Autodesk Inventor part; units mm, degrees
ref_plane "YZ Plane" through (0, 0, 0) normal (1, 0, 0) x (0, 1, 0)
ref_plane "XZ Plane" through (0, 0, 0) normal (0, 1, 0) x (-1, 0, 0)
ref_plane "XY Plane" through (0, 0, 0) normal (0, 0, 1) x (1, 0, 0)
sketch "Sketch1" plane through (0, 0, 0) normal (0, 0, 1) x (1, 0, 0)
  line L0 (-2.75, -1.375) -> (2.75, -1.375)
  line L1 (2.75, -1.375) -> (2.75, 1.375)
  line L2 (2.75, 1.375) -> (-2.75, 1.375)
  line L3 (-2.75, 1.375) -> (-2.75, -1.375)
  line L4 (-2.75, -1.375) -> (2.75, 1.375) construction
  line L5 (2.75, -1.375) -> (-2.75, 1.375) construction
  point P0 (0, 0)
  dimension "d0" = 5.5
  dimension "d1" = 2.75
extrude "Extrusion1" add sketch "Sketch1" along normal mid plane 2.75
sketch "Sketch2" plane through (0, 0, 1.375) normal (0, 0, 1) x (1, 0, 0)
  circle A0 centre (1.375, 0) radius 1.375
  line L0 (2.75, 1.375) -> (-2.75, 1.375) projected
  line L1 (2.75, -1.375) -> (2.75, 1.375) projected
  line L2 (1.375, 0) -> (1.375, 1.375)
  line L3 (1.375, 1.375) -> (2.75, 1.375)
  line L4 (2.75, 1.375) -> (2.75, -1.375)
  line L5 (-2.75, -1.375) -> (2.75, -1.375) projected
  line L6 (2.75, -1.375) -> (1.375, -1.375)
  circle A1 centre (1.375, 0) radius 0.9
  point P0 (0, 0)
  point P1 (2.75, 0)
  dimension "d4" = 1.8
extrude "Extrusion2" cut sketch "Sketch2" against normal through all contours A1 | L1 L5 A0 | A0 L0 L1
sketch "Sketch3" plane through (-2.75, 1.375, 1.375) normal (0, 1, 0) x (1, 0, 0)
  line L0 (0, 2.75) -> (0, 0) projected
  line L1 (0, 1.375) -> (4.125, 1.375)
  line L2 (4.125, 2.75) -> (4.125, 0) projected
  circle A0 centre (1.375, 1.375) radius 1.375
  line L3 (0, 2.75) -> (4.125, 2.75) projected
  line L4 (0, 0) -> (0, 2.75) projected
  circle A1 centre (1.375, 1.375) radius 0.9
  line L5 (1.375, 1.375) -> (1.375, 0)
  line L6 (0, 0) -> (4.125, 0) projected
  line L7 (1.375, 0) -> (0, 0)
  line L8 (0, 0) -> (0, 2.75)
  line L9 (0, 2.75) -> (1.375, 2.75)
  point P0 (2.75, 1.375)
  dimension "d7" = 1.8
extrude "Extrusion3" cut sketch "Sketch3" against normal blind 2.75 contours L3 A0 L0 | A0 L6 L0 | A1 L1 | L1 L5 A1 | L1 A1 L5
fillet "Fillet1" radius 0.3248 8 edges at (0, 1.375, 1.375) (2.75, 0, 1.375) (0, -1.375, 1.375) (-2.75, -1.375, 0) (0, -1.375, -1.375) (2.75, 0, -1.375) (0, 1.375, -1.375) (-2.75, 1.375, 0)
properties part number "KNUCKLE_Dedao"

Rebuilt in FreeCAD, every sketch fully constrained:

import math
import FreeCAD as App
import Part
import Sketcher

V = App.Vector


def edges_at(feature, points):
    """Names of the edges that pass closest to the given points."""
    edges = feature.Shape.Edges
    near = lambda p: min(range(len(edges)), key=lambda i: edges[i].distToShape(Part.Vertex(*p))[0])
    return sorted({f"Edge{near(p) + 1}" for p in points})


def add_polygon(sketch, points):
    """Adds a closed chain of lines whose ends are joined by coincident constraints."""
    first, n = sketch.GeometryCount, len(points)
    for a, b in zip(points, points[1:] + points[:1]):
        sketch.addGeometry(Part.LineSegment(App.Vector(*a, 0), App.Vector(*b, 0)), False)
    for i in range(n):
        sketch.addConstraint(Sketcher.Constraint("Coincident", first + i, 2, first + (i + 1) % n, 1))

doc = App.newDocument("Part")
body = doc.addObject("PartDesign::Body", "Body")

# Sketch on XY plane
sketch1 = body.newObject("Sketcher::SketchObject", "Sketch")
sketch1.AttachmentSupport = (doc.getObject("XY_Plane"), [""])
sketch1.MapMode = "FlatFace"
add_polygon(sketch1, [(-2.75, 1.375), (-2.75, -1.375), (2.75, -1.375), (2.75, 1.375)])  # lines 0-3
sketch1.addConstraint(Sketcher.Constraint("Vertical", 0))
sketch1.addConstraint(Sketcher.Constraint("Horizontal", 1))
sketch1.addConstraint(Sketcher.Constraint("Vertical", 2))
sketch1.addConstraint(Sketcher.Constraint("Horizontal", 3))
sketch1.addConstraint(Sketcher.Constraint("Symmetric", 0, 2, 2, 2, -1, 1))
sketch1.addConstraint(Sketcher.Constraint("DistanceX", 1, 1, 1, 2, 5.5))
sketch1.addConstraint(Sketcher.Constraint("DistanceY", 0, 2, 0, 1, 2.75))
pad1 = body.newObject("PartDesign::Pad", "Pad")
pad1.Profile = sketch1
pad1.Length = 2.75
pad1.Midplane = True

# Sketch on XY plane
sketch2 = body.newObject("Sketcher::SketchObject", "Sketch001")
sketch2.AttachmentSupport = (doc.getObject("XY_Plane"), [""])
sketch2.MapMode = "FlatFace"
sketch2.AttachmentOffset = App.Placement(V(0, 0, 1.375), App.Rotation())
sketch2.addGeometry(Part.Circle(V(1.375, 0, 0), V(0, 0, 1), 0.9), False)
sketch2.addGeometry(Part.LineSegment(V(2.75, -1.375, 0), V(2.75, 0, 0)), False)
sketch2.addGeometry(Part.ArcOfCircle(Part.Circle(V(1.375, 0, 0), V(0, 0, 1), 1.375), math.radians(-90), math.radians(0)), False)
sketch2.addGeometry(Part.LineSegment(V(1.375, -1.375, 0), V(2.75, -1.375, 0)), False)
sketch2.addGeometry(Part.ArcOfCircle(Part.Circle(V(1.375, 0, 0), V(0, 0, 1), 1.375), math.radians(0), math.radians(90)), False)
sketch2.addGeometry(Part.LineSegment(V(2.75, 0, 0), V(2.75, 1.375, 0)), False)
sketch2.addGeometry(Part.LineSegment(V(2.75, 1.375, 0), V(1.375, 1.375, 0)), False)
sketch2.addConstraint(Sketcher.Constraint("Tangent", 1, 2, 2, 2))
sketch2.addConstraint(Sketcher.Constraint("Tangent", 2, 1, 3, 1))
sketch2.addConstraint(Sketcher.Constraint("Coincident", 3, 2, 1, 1))
sketch2.addConstraint(Sketcher.Constraint("Tangent", 4, 1, 5, 1))
sketch2.addConstraint(Sketcher.Constraint("Coincident", 5, 2, 6, 1))
sketch2.addConstraint(Sketcher.Constraint("Tangent", 6, 2, 4, 2))
sketch2.addConstraint(Sketcher.Constraint("Vertical", 1))
sketch2.addConstraint(Sketcher.Constraint("Horizontal", 3))
sketch2.addConstraint(Sketcher.Constraint("Vertical", 5))
sketch2.addConstraint(Sketcher.Constraint("Horizontal", 6))
sketch2.addConstraint(Sketcher.Constraint("Coincident", 2, 3, 0, 3))
sketch2.addConstraint(Sketcher.Constraint("Coincident", 4, 3, 0, 3))
sketch2.addConstraint(Sketcher.Constraint("Equal", 2, 4))
sketch2.addConstraint(Sketcher.Constraint("PointOnObject", 0, 3, -1))
sketch2.addConstraint(Sketcher.Constraint("Diameter", 0, 1.8))
sketch2.addConstraint(Sketcher.Constraint("Radius", 2, 1.375))
sketch2.addConstraint(Sketcher.Constraint("DistanceX", -1, 1, 1, 2, 2.75))
pocket1 = body.newObject("PartDesign::Pocket", "Pocket")
pocket1.Profile = sketch2
pocket1.Type = "ThroughAll"

# Sketch on XZ plane
sketch3 = body.newObject("Sketcher::SketchObject", "Sketch002")
sketch3.AttachmentSupport = (doc.getObject("XZ_Plane"), [""])
sketch3.MapMode = "FlatFace"
sketch3.AttachmentOffset = App.Placement(V(0, 0, -1.375), App.Rotation())
sketch3.addGeometry(Part.LineSegment(V(-1.375, -1.375, 0), V(-2.75, -1.375, 0)), False)
sketch3.addGeometry(Part.LineSegment(V(-2.75, -1.375, 0), V(-2.75, 0, 0)), False)
sketch3.addGeometry(Part.ArcOfCircle(Part.Circle(V(-1.375, 0, 0), V(0, 0, 1), 1.375), math.radians(180), math.radians(270)), False)
sketch3.addGeometry(Part.ArcOfCircle(Part.Circle(V(-1.375, 0, 0), V(0, 0, 1), 1.375), math.radians(90), math.radians(180)), False)
sketch3.addGeometry(Part.LineSegment(V(-2.75, 0, 0), V(-2.75, 1.375, 0)), False)
sketch3.addGeometry(Part.LineSegment(V(-2.75, 1.375, 0), V(-1.375, 1.375, 0)), False)
sketch3.addGeometry(Part.Circle(V(-1.375, 0, 0), V(0, 0, 1), 0.9), False)
sketch3.addConstraint(Sketcher.Constraint("Coincident", 0, 2, 1, 1))
sketch3.addConstraint(Sketcher.Constraint("Tangent", 1, 2, 2, 1))
sketch3.addConstraint(Sketcher.Constraint("Tangent", 2, 2, 0, 1))
sketch3.addConstraint(Sketcher.Constraint("Tangent", 3, 2, 4, 1))
sketch3.addConstraint(Sketcher.Constraint("Coincident", 4, 2, 5, 1))
sketch3.addConstraint(Sketcher.Constraint("Tangent", 5, 2, 3, 1))
sketch3.addConstraint(Sketcher.Constraint("Horizontal", 0))
sketch3.addConstraint(Sketcher.Constraint("Vertical", 1))
sketch3.addConstraint(Sketcher.Constraint("Vertical", 4))
sketch3.addConstraint(Sketcher.Constraint("Horizontal", 5))
sketch3.addConstraint(Sketcher.Constraint("Coincident", 3, 3, 2, 3))
sketch3.addConstraint(Sketcher.Constraint("Coincident", 6, 3, 2, 3))
sketch3.addConstraint(Sketcher.Constraint("Equal", 2, 3))
sketch3.addConstraint(Sketcher.Constraint("PointOnObject", 2, 3, -1))
sketch3.addConstraint(Sketcher.Constraint("Diameter", 6, 1.8))
sketch3.addConstraint(Sketcher.Constraint("Radius", 2, 1.375))
sketch3.addConstraint(Sketcher.Constraint("DistanceX", 0, 2, -1, 1, 2.75))
pocket2 = body.newObject("PartDesign::Pocket", "Pocket001")
pocket2.Profile = sketch3
pocket2.Length = 2.75
pocket2.Reversed = True
doc.recompute()

fillet = body.newObject("PartDesign::Fillet", "Fillet")
fillet.Base = (pocket2, edges_at(pocket2, [
    (0, 1.375, 1.375),
    (2.75, 0, 1.375),
    (0, -1.375, 1.375),
    (-2.75, -1.375, 0),
    (0, -1.375, -1.375),
    (2.75, 0, -1.375),
    (0, 1.375, -1.375),
    (-2.75, 1.375, 0),
]))
fillet.Radius = 0.3248

doc.recompute()
